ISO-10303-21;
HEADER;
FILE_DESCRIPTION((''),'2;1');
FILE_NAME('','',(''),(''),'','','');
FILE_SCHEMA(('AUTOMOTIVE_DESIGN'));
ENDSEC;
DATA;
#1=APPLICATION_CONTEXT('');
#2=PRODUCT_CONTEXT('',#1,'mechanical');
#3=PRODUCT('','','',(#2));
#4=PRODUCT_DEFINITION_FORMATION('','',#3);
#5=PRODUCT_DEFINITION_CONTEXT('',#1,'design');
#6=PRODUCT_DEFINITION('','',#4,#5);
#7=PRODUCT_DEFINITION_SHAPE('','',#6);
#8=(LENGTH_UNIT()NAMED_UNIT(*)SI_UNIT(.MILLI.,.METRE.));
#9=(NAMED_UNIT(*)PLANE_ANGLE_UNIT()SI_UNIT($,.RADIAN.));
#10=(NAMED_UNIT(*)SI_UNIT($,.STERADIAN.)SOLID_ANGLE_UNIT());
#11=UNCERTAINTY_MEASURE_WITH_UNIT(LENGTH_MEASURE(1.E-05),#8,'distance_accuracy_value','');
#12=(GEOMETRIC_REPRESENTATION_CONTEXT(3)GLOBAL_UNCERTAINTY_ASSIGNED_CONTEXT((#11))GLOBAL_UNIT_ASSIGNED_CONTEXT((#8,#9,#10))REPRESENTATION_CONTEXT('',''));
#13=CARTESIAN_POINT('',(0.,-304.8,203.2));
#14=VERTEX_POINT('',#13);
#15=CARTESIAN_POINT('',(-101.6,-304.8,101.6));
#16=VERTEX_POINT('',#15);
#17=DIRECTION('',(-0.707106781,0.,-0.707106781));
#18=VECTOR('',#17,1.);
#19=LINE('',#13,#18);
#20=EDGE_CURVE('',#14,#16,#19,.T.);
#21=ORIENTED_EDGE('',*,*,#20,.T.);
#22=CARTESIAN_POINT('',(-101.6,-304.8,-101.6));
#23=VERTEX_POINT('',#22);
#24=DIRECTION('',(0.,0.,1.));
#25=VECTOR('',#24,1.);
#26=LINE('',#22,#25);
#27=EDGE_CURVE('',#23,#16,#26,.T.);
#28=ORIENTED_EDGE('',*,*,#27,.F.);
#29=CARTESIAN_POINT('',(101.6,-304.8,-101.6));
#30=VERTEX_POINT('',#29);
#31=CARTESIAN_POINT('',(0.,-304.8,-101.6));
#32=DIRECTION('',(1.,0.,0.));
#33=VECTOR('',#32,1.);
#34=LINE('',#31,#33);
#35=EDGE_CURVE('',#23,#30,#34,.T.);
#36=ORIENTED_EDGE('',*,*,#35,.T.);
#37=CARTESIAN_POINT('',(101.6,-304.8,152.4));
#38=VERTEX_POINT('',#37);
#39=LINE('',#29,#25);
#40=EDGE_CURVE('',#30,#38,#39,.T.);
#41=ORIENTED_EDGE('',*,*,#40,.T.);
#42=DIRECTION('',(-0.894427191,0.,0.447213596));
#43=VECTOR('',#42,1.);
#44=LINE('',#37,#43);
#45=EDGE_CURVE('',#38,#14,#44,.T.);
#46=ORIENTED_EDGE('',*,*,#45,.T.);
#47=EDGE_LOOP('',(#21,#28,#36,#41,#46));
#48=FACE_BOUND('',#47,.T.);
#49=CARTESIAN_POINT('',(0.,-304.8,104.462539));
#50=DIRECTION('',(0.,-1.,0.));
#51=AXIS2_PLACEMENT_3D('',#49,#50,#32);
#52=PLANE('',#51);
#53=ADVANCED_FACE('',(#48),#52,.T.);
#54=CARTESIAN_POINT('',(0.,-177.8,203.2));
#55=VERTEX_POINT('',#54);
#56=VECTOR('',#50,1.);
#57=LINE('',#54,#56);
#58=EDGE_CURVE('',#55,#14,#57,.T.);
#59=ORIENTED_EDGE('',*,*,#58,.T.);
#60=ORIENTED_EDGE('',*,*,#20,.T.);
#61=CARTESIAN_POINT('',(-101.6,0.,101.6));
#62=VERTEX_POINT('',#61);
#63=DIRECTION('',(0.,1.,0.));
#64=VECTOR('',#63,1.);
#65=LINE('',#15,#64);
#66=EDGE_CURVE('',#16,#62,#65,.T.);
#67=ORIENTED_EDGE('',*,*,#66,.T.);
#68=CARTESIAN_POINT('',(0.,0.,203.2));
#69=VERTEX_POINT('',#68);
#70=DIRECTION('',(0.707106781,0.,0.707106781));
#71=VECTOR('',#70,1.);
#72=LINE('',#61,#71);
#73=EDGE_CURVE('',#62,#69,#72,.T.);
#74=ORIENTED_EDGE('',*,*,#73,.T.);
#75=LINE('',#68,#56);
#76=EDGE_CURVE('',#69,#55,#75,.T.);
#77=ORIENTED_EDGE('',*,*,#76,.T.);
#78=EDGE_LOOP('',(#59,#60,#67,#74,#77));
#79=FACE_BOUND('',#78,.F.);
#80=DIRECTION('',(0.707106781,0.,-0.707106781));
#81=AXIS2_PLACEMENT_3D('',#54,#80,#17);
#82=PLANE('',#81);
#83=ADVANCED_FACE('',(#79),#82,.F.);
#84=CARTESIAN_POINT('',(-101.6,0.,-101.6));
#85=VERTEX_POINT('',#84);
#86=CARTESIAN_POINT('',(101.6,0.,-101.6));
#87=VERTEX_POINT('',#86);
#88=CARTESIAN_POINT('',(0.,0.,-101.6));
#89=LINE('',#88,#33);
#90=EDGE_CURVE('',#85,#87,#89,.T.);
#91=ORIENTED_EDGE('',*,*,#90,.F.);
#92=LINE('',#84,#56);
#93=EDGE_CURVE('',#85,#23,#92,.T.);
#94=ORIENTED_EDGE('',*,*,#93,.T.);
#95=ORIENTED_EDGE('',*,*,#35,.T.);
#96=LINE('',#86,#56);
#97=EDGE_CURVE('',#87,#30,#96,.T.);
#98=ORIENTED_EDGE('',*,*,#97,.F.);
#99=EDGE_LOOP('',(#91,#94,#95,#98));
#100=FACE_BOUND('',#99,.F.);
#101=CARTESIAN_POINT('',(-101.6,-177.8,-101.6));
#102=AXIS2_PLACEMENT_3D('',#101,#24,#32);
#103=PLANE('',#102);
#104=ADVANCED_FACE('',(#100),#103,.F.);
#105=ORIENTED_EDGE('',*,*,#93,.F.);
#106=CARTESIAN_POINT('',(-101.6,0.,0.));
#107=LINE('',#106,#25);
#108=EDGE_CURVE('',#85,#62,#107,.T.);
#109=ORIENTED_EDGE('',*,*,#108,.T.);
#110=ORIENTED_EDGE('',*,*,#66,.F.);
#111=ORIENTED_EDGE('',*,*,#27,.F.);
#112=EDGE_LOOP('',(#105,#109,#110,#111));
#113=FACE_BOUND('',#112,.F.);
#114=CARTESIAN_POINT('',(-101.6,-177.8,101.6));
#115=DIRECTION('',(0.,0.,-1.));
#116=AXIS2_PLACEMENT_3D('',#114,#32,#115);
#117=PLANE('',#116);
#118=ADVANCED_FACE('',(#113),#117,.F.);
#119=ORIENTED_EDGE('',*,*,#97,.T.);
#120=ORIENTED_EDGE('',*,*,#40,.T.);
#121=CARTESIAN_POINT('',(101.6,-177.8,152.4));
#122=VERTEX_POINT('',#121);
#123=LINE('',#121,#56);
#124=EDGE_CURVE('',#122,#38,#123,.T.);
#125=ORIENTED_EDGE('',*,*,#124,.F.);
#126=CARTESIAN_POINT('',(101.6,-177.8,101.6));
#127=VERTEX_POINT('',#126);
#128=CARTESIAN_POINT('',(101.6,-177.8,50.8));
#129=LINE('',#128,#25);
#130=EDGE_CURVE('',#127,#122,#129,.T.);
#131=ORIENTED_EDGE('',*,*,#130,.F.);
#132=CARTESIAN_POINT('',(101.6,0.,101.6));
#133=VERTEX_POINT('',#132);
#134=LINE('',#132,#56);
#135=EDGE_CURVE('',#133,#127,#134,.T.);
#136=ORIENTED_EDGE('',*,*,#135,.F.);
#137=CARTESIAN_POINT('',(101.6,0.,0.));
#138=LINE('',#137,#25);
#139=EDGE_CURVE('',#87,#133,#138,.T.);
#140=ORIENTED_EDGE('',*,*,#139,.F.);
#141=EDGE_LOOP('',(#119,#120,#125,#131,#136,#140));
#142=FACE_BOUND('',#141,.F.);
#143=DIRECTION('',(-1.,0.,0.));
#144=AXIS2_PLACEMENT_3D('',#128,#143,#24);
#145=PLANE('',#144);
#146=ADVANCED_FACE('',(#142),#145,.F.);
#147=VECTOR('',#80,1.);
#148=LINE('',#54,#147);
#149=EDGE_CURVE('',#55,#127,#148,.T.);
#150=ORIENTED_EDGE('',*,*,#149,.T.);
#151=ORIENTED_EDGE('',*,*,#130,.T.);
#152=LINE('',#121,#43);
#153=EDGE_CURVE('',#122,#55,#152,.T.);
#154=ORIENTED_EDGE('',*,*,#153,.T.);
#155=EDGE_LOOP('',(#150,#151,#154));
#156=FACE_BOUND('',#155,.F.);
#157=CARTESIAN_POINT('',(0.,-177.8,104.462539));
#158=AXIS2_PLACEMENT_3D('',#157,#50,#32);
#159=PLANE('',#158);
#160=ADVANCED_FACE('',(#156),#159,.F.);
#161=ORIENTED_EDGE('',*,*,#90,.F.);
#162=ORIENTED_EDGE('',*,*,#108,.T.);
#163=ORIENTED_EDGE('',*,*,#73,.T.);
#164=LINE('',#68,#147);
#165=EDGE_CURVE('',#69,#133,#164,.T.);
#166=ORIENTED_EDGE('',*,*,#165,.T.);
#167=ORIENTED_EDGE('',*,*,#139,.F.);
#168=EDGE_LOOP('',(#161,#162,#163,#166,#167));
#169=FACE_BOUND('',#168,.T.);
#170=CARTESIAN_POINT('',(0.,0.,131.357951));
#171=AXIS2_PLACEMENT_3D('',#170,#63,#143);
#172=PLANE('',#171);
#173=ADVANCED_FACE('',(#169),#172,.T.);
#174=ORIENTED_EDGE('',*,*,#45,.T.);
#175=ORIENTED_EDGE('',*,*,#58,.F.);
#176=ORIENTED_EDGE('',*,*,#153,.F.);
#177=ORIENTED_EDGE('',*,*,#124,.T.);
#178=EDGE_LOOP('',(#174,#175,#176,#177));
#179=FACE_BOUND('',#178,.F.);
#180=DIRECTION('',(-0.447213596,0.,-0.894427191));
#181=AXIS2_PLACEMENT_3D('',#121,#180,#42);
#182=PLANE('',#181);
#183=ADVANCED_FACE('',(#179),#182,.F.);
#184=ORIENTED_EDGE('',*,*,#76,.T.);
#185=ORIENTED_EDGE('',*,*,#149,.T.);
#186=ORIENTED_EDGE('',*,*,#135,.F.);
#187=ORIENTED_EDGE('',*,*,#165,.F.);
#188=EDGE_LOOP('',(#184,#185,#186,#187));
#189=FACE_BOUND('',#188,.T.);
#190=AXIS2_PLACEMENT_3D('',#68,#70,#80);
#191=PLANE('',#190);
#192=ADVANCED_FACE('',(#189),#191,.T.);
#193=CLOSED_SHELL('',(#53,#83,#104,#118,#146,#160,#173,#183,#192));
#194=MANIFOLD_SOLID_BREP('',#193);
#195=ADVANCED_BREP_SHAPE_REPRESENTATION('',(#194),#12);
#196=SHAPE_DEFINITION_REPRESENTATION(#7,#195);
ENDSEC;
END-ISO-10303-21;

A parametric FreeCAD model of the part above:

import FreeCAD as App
import Part
import Sketcher
Q = App.Units.Quantity


def add_polygon(sketch, points):
    """Adds a closed chain of lines whose ends are joined by coincident constraints."""
    first, n = sketch.GeometryCount, len(points)
    for a, b in zip(points, points[1:] + points[:1]):
        sketch.addGeometry(Part.LineSegment(App.Vector(*a, 0), App.Vector(*b, 0)), False)
    for i in range(n):
        sketch.addConstraint(Sketcher.Constraint("Coincident", first + i, 2, first + (i + 1) % n, 1))

doc = App.newDocument("Part")
body = doc.addObject("PartDesign::Body", "Body")

# Sketch on XZ plane
sketch1 = body.newObject("Sketcher::SketchObject", "Sketch")
sketch1.AttachmentSupport = (doc.getObject("XZ_Plane"), [""])
sketch1.MapMode = "FlatFace"
add_polygon(sketch1, [(-101.6, 101.6), (-101.6, -101.6), (101.6, -101.6), (101.6, 101.6)])  # lines 0-3
sketch1.addConstraint([
    Sketcher.Constraint("Vertical", 0),
    Sketcher.Constraint("Horizontal", 1),
    Sketcher.Constraint("Vertical", 2),
    Sketcher.Constraint("Horizontal", 3),
    Sketcher.Constraint("Symmetric", 0, 2, 2, 2, -1, 1),
    Sketcher.Constraint("Equal", 3, 0),
    Sketcher.Constraint("DistanceX", 1, 1, 1, 2, Q("8 in")),
])
pad1 = body.newObject("PartDesign::Pad", "Pad")
pad1.Profile = sketch1
pad1.Length = Q("7 in")

# Sketch on XZ plane
sketch2 = body.newObject("Sketcher::SketchObject", "Sketch001")
sketch2.AttachmentSupport = (doc.getObject("XZ_Plane"), [""])
sketch2.MapMode = "FlatFace"
add_polygon(sketch2, [(0, 203.2), (101.6, 101.6), (-101.6, 101.6)])  # lines 0-2
sketch2.addConstraint([
    Sketcher.Constraint("Horizontal", 1),
    Sketcher.Constraint("PointOnObject", 2, 2, -2),
    Sketcher.Constraint("Perpendicular", 0, 2),
    Sketcher.Constraint("Equal", 0, 2),
    Sketcher.Constraint("DistanceX", 1, 2, 1, 1, Q("8 in")),
    Sketcher.Constraint("DistanceY", -1, 1, 0, 2, Q("4 in")),
])
pad2 = body.newObject("PartDesign::Pad", "Pad001")
pad2.Profile = sketch2
pad2.Length = Q("7 in")

# Sketch on XZ plane
sketch3 = body.newObject("Sketcher::SketchObject", "Sketch002")
sketch3.AttachmentSupport = (doc.getObject("XZ_Plane"), [""])
sketch3.MapMode = "FlatFace"
sketch3.AttachmentOffset = App.Placement(App.Vector(0, 0, 7 * 25.4), App.Rotation())
add_polygon(sketch3, [(-101.6, 50.8), (-101.6, -101.6), (101.6, -101.6), (101.6, 50.8)])  # lines 0-3
sketch3.addConstraint([
    Sketcher.Constraint("Vertical", 0),
    Sketcher.Constraint("Horizontal", 1),
    Sketcher.Constraint("Vertical", 2),
    Sketcher.Constraint("Horizontal", 3),
    Sketcher.Constraint("DistanceX", 1, 1, 1, 2, Q("8 in")),
    Sketcher.Constraint("DistanceY", 0, 2, 0, 1, Q("6 in")),
    Sketcher.Constraint("DistanceX", 0, 2, -1, 1, Q("4 in")),
    Sketcher.Constraint("DistanceY", 0, 2, -1, 1, Q("4 in")),
])
pad3 = body.newObject("PartDesign::Pad", "Pad002")
pad3.Profile = sketch3
pad3.Length = Q("5 in")

# Sketch on XZ plane
sketch4 = body.newObject("Sketcher::SketchObject", "Sketch003")
sketch4.AttachmentSupport = (doc.getObject("XZ_Plane"), [""])
sketch4.MapMode = "FlatFace"
sketch4.AttachmentOffset = App.Placement(App.Vector(0, 0, 7 * 25.4), App.Rotation())
add_polygon(sketch4, [(-101.6, 101.6), (-101.6, 50.8), (101.6, 50.8), (101.6, 152.4), (0, 203.2)])  # lines 0-4
sketch4.addConstraint([
    Sketcher.Constraint("Vertical", 0),
    Sketcher.Constraint("Horizontal", 1),
    Sketcher.Constraint("Vertical", 2),
    Sketcher.Constraint("PointOnObject", 3, 2, -2),
    Sketcher.Constraint("DistanceX", 1, 1, 1, 2, Q("8 in")),
    Sketcher.Constraint("DistanceY", 0, 2, 0, 1, Q("2 in")),
    Sketcher.Constraint("DistanceY", 2, 1, 2, 2, Q("4 in")),
    Sketcher.Constraint("DistanceX", 0, 2, -1, 1, Q("4 in")),
    Sketcher.Constraint("DistanceY", -1, 1, 0, 2, Q("2 in")),
    Sketcher.Constraint("DistanceY", -1, 1, 3, 2, Q("8 in")),
])
pad4 = body.newObject("PartDesign::Pad", "Pad003")
pad4.Profile = sketch4
pad4.Length = Q("5 in")

doc.recompute()
